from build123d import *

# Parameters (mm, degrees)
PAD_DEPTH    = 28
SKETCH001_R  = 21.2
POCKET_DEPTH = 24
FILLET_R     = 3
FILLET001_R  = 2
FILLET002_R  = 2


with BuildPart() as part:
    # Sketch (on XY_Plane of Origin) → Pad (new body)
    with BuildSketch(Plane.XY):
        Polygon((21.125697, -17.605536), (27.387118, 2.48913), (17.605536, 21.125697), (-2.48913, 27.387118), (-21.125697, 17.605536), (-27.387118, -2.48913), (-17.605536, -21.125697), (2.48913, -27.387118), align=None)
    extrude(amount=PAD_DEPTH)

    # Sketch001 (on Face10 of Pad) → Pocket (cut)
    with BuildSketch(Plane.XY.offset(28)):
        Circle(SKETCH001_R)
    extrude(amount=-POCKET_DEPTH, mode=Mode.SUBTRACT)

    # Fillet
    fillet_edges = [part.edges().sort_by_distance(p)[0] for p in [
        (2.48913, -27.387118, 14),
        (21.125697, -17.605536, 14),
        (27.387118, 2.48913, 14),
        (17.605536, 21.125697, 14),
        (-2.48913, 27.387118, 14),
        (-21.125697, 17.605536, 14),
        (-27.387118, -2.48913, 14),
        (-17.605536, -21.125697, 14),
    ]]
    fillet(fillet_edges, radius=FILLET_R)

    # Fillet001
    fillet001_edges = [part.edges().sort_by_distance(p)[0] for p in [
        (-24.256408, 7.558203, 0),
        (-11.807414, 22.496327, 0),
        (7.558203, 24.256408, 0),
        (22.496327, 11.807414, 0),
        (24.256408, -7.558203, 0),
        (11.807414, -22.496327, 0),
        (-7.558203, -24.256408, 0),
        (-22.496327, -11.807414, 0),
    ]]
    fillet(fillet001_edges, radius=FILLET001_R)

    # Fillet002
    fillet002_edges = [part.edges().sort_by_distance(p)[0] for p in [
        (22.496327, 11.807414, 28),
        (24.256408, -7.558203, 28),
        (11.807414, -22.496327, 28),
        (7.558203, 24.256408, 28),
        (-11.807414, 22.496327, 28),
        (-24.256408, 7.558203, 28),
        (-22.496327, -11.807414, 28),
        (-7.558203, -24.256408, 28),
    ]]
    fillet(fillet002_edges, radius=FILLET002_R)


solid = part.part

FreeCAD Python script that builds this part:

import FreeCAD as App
import Part
import Sketcher
from FreeCAD import Vector


def edges_at(feature, points):
    """Names of the edges that pass closest to the given points."""
    edges = feature.Shape.Edges
    near = lambda p: min(range(len(edges)), key=lambda i: edges[i].distToShape(Part.Vertex(*p))[0])
    return sorted({f"Edge{near(p) + 1}" for p in points})


def add_polygon(sketch, points):
    """Adds a closed chain of lines whose ends are joined by coincident constraints."""
    first, n = sketch.GeometryCount, len(points)
    for a, b in zip(points, points[1:] + points[:1]):
        sketch.addGeometry(Part.LineSegment(App.Vector(*a, 0), App.Vector(*b, 0)), False)
    for i in range(n):
        sketch.addConstraint(Sketcher.Constraint("Coincident", first + i, 2, first + (i + 1) % n, 1))

doc = App.newDocument("Part")
body = doc.addObject("PartDesign::Body", "Body")

# Sketch on XY plane
sketch1 = doc.addObject("Sketcher::SketchObject", "Sketch")
body.addObject(sketch1)
sketch1.AttachmentSupport = (doc.XY_Plane, [""])
sketch1.MapMode = "FlatFace"
add_polygon(sketch1, [(21, -18), (27, 2), (18, 21), (-2, 27), (-21, 18), (-27, -2), (-18, -21), (2, -27)])  # lines 0-7
sketch1.addConstraint(Sketcher.Constraint("Symmetric", 0, 2, 4, 2, -1, 1))
sketch1.addConstraint(Sketcher.Constraint("Symmetric", 1, 2, 5, 2, -1, 1))
sketch1.addConstraint(Sketcher.Constraint("Symmetric", 2, 2, 6, 2, -1, 1))
sketch1.addConstraint(Sketcher.Constraint("Symmetric", 3, 2, 7, 2, -1, 1))
sketch1.addConstraint(Sketcher.Constraint("Perpendicular", 0, 2))
sketch1.addConstraint(Sketcher.Constraint("Perpendicular", 1, 3))
sketch1.addConstraint(Sketcher.Constraint("Equal", 0, 1))
sketch1.addConstraint(Sketcher.Constraint("Equal", 1, 2))
sketch1.addConstraint(Sketcher.Constraint("Equal", 2, 3))
sketch1.addConstraint(Sketcher.Constraint("Distance", 0, 21.047589))
sketch1.addConstraint(Sketcher.Constraint("DistanceX", -1, 1, 0, 2, 27.387118))
sketch1.addConstraint(Sketcher.Constraint("DistanceY", -1, 1, 0, 2, 2.48913))
pad1 = doc.addObject("PartDesign::Pad", "Pad")
body.addObject(pad1)
pad1.Profile = sketch1
pad1.Length = 28

# Sketch on XY plane
sketch2 = doc.addObject("Sketcher::SketchObject", "Sketch001")
body.addObject(sketch2)
sketch2.AttachmentSupport = (doc.XY_Plane, [""])
sketch2.MapMode = "FlatFace"
sketch2.AttachmentOffset = App.Placement(Vector(0, 0, 28), App.Rotation())
sketch2.addGeometry(Part.Circle(Vector(0, 0, 0), Vector(0, 0, 1), 21), False)
sketch2.addConstraint(Sketcher.Constraint("Coincident", 0, 3, -1, 1))
sketch2.addConstraint(Sketcher.Constraint("Diameter", 0, 42.4))
pocket1 = doc.addObject("PartDesign::Pocket", "Pocket")
body.addObject(pocket1)
pocket1.Profile = sketch2
pocket1.Length = 24
doc.recompute()

fillet = doc.addObject("PartDesign::Fillet", "Fillet")
body.addObject(fillet)
fillet.Base = (pocket1, edges_at(pocket1, [
    (2.489, -27.387, 14),
    (21.126, -17.606, 14),
    (27.387, 2.489, 14),
    (17.606, 21.126, 14),
    (-2.489, 27.387, 14),
    (-21.126, 17.606, 14),
    (-27.387, -2.489, 14),
    (-17.606, -21.126, 14),
]))
fillet.Radius = 3
doc.recompute()

fillet2 = doc.addObject("PartDesign::Fillet", "Fillet001")
body.addObject(fillet2)
fillet2.Base = (fillet, edges_at(fillet, [
    (-24.256, 7.558, 0),
    (-11.807, 22.496, 0),
    (7.558, 24.256, 0),
    (22.496, 11.807, 0),
    (24.256, -7.558, 0),
    (11.807, -22.496, 0),
    (-7.558, -24.256, 0),
    (-22.496, -11.807, 0),
]))
fillet2.Radius = 2
doc.recompute()

fillet3 = doc.addObject("PartDesign::Fillet", "Fillet002")
body.addObject(fillet3)
fillet3.Base = (fillet2, edges_at(fillet2, [
    (22.496, 11.807, 28),
    (24.256, -7.558, 28),
    (11.807, -22.496, 28),
    (7.558, 24.256, 28),
    (-11.807, 22.496, 28),
    (-24.256, 7.558, 28),
    (-22.496, -11.807, 28),
    (-7.558, -24.256, 28),
]))
fillet3.Radius = 2

doc.recompute()
